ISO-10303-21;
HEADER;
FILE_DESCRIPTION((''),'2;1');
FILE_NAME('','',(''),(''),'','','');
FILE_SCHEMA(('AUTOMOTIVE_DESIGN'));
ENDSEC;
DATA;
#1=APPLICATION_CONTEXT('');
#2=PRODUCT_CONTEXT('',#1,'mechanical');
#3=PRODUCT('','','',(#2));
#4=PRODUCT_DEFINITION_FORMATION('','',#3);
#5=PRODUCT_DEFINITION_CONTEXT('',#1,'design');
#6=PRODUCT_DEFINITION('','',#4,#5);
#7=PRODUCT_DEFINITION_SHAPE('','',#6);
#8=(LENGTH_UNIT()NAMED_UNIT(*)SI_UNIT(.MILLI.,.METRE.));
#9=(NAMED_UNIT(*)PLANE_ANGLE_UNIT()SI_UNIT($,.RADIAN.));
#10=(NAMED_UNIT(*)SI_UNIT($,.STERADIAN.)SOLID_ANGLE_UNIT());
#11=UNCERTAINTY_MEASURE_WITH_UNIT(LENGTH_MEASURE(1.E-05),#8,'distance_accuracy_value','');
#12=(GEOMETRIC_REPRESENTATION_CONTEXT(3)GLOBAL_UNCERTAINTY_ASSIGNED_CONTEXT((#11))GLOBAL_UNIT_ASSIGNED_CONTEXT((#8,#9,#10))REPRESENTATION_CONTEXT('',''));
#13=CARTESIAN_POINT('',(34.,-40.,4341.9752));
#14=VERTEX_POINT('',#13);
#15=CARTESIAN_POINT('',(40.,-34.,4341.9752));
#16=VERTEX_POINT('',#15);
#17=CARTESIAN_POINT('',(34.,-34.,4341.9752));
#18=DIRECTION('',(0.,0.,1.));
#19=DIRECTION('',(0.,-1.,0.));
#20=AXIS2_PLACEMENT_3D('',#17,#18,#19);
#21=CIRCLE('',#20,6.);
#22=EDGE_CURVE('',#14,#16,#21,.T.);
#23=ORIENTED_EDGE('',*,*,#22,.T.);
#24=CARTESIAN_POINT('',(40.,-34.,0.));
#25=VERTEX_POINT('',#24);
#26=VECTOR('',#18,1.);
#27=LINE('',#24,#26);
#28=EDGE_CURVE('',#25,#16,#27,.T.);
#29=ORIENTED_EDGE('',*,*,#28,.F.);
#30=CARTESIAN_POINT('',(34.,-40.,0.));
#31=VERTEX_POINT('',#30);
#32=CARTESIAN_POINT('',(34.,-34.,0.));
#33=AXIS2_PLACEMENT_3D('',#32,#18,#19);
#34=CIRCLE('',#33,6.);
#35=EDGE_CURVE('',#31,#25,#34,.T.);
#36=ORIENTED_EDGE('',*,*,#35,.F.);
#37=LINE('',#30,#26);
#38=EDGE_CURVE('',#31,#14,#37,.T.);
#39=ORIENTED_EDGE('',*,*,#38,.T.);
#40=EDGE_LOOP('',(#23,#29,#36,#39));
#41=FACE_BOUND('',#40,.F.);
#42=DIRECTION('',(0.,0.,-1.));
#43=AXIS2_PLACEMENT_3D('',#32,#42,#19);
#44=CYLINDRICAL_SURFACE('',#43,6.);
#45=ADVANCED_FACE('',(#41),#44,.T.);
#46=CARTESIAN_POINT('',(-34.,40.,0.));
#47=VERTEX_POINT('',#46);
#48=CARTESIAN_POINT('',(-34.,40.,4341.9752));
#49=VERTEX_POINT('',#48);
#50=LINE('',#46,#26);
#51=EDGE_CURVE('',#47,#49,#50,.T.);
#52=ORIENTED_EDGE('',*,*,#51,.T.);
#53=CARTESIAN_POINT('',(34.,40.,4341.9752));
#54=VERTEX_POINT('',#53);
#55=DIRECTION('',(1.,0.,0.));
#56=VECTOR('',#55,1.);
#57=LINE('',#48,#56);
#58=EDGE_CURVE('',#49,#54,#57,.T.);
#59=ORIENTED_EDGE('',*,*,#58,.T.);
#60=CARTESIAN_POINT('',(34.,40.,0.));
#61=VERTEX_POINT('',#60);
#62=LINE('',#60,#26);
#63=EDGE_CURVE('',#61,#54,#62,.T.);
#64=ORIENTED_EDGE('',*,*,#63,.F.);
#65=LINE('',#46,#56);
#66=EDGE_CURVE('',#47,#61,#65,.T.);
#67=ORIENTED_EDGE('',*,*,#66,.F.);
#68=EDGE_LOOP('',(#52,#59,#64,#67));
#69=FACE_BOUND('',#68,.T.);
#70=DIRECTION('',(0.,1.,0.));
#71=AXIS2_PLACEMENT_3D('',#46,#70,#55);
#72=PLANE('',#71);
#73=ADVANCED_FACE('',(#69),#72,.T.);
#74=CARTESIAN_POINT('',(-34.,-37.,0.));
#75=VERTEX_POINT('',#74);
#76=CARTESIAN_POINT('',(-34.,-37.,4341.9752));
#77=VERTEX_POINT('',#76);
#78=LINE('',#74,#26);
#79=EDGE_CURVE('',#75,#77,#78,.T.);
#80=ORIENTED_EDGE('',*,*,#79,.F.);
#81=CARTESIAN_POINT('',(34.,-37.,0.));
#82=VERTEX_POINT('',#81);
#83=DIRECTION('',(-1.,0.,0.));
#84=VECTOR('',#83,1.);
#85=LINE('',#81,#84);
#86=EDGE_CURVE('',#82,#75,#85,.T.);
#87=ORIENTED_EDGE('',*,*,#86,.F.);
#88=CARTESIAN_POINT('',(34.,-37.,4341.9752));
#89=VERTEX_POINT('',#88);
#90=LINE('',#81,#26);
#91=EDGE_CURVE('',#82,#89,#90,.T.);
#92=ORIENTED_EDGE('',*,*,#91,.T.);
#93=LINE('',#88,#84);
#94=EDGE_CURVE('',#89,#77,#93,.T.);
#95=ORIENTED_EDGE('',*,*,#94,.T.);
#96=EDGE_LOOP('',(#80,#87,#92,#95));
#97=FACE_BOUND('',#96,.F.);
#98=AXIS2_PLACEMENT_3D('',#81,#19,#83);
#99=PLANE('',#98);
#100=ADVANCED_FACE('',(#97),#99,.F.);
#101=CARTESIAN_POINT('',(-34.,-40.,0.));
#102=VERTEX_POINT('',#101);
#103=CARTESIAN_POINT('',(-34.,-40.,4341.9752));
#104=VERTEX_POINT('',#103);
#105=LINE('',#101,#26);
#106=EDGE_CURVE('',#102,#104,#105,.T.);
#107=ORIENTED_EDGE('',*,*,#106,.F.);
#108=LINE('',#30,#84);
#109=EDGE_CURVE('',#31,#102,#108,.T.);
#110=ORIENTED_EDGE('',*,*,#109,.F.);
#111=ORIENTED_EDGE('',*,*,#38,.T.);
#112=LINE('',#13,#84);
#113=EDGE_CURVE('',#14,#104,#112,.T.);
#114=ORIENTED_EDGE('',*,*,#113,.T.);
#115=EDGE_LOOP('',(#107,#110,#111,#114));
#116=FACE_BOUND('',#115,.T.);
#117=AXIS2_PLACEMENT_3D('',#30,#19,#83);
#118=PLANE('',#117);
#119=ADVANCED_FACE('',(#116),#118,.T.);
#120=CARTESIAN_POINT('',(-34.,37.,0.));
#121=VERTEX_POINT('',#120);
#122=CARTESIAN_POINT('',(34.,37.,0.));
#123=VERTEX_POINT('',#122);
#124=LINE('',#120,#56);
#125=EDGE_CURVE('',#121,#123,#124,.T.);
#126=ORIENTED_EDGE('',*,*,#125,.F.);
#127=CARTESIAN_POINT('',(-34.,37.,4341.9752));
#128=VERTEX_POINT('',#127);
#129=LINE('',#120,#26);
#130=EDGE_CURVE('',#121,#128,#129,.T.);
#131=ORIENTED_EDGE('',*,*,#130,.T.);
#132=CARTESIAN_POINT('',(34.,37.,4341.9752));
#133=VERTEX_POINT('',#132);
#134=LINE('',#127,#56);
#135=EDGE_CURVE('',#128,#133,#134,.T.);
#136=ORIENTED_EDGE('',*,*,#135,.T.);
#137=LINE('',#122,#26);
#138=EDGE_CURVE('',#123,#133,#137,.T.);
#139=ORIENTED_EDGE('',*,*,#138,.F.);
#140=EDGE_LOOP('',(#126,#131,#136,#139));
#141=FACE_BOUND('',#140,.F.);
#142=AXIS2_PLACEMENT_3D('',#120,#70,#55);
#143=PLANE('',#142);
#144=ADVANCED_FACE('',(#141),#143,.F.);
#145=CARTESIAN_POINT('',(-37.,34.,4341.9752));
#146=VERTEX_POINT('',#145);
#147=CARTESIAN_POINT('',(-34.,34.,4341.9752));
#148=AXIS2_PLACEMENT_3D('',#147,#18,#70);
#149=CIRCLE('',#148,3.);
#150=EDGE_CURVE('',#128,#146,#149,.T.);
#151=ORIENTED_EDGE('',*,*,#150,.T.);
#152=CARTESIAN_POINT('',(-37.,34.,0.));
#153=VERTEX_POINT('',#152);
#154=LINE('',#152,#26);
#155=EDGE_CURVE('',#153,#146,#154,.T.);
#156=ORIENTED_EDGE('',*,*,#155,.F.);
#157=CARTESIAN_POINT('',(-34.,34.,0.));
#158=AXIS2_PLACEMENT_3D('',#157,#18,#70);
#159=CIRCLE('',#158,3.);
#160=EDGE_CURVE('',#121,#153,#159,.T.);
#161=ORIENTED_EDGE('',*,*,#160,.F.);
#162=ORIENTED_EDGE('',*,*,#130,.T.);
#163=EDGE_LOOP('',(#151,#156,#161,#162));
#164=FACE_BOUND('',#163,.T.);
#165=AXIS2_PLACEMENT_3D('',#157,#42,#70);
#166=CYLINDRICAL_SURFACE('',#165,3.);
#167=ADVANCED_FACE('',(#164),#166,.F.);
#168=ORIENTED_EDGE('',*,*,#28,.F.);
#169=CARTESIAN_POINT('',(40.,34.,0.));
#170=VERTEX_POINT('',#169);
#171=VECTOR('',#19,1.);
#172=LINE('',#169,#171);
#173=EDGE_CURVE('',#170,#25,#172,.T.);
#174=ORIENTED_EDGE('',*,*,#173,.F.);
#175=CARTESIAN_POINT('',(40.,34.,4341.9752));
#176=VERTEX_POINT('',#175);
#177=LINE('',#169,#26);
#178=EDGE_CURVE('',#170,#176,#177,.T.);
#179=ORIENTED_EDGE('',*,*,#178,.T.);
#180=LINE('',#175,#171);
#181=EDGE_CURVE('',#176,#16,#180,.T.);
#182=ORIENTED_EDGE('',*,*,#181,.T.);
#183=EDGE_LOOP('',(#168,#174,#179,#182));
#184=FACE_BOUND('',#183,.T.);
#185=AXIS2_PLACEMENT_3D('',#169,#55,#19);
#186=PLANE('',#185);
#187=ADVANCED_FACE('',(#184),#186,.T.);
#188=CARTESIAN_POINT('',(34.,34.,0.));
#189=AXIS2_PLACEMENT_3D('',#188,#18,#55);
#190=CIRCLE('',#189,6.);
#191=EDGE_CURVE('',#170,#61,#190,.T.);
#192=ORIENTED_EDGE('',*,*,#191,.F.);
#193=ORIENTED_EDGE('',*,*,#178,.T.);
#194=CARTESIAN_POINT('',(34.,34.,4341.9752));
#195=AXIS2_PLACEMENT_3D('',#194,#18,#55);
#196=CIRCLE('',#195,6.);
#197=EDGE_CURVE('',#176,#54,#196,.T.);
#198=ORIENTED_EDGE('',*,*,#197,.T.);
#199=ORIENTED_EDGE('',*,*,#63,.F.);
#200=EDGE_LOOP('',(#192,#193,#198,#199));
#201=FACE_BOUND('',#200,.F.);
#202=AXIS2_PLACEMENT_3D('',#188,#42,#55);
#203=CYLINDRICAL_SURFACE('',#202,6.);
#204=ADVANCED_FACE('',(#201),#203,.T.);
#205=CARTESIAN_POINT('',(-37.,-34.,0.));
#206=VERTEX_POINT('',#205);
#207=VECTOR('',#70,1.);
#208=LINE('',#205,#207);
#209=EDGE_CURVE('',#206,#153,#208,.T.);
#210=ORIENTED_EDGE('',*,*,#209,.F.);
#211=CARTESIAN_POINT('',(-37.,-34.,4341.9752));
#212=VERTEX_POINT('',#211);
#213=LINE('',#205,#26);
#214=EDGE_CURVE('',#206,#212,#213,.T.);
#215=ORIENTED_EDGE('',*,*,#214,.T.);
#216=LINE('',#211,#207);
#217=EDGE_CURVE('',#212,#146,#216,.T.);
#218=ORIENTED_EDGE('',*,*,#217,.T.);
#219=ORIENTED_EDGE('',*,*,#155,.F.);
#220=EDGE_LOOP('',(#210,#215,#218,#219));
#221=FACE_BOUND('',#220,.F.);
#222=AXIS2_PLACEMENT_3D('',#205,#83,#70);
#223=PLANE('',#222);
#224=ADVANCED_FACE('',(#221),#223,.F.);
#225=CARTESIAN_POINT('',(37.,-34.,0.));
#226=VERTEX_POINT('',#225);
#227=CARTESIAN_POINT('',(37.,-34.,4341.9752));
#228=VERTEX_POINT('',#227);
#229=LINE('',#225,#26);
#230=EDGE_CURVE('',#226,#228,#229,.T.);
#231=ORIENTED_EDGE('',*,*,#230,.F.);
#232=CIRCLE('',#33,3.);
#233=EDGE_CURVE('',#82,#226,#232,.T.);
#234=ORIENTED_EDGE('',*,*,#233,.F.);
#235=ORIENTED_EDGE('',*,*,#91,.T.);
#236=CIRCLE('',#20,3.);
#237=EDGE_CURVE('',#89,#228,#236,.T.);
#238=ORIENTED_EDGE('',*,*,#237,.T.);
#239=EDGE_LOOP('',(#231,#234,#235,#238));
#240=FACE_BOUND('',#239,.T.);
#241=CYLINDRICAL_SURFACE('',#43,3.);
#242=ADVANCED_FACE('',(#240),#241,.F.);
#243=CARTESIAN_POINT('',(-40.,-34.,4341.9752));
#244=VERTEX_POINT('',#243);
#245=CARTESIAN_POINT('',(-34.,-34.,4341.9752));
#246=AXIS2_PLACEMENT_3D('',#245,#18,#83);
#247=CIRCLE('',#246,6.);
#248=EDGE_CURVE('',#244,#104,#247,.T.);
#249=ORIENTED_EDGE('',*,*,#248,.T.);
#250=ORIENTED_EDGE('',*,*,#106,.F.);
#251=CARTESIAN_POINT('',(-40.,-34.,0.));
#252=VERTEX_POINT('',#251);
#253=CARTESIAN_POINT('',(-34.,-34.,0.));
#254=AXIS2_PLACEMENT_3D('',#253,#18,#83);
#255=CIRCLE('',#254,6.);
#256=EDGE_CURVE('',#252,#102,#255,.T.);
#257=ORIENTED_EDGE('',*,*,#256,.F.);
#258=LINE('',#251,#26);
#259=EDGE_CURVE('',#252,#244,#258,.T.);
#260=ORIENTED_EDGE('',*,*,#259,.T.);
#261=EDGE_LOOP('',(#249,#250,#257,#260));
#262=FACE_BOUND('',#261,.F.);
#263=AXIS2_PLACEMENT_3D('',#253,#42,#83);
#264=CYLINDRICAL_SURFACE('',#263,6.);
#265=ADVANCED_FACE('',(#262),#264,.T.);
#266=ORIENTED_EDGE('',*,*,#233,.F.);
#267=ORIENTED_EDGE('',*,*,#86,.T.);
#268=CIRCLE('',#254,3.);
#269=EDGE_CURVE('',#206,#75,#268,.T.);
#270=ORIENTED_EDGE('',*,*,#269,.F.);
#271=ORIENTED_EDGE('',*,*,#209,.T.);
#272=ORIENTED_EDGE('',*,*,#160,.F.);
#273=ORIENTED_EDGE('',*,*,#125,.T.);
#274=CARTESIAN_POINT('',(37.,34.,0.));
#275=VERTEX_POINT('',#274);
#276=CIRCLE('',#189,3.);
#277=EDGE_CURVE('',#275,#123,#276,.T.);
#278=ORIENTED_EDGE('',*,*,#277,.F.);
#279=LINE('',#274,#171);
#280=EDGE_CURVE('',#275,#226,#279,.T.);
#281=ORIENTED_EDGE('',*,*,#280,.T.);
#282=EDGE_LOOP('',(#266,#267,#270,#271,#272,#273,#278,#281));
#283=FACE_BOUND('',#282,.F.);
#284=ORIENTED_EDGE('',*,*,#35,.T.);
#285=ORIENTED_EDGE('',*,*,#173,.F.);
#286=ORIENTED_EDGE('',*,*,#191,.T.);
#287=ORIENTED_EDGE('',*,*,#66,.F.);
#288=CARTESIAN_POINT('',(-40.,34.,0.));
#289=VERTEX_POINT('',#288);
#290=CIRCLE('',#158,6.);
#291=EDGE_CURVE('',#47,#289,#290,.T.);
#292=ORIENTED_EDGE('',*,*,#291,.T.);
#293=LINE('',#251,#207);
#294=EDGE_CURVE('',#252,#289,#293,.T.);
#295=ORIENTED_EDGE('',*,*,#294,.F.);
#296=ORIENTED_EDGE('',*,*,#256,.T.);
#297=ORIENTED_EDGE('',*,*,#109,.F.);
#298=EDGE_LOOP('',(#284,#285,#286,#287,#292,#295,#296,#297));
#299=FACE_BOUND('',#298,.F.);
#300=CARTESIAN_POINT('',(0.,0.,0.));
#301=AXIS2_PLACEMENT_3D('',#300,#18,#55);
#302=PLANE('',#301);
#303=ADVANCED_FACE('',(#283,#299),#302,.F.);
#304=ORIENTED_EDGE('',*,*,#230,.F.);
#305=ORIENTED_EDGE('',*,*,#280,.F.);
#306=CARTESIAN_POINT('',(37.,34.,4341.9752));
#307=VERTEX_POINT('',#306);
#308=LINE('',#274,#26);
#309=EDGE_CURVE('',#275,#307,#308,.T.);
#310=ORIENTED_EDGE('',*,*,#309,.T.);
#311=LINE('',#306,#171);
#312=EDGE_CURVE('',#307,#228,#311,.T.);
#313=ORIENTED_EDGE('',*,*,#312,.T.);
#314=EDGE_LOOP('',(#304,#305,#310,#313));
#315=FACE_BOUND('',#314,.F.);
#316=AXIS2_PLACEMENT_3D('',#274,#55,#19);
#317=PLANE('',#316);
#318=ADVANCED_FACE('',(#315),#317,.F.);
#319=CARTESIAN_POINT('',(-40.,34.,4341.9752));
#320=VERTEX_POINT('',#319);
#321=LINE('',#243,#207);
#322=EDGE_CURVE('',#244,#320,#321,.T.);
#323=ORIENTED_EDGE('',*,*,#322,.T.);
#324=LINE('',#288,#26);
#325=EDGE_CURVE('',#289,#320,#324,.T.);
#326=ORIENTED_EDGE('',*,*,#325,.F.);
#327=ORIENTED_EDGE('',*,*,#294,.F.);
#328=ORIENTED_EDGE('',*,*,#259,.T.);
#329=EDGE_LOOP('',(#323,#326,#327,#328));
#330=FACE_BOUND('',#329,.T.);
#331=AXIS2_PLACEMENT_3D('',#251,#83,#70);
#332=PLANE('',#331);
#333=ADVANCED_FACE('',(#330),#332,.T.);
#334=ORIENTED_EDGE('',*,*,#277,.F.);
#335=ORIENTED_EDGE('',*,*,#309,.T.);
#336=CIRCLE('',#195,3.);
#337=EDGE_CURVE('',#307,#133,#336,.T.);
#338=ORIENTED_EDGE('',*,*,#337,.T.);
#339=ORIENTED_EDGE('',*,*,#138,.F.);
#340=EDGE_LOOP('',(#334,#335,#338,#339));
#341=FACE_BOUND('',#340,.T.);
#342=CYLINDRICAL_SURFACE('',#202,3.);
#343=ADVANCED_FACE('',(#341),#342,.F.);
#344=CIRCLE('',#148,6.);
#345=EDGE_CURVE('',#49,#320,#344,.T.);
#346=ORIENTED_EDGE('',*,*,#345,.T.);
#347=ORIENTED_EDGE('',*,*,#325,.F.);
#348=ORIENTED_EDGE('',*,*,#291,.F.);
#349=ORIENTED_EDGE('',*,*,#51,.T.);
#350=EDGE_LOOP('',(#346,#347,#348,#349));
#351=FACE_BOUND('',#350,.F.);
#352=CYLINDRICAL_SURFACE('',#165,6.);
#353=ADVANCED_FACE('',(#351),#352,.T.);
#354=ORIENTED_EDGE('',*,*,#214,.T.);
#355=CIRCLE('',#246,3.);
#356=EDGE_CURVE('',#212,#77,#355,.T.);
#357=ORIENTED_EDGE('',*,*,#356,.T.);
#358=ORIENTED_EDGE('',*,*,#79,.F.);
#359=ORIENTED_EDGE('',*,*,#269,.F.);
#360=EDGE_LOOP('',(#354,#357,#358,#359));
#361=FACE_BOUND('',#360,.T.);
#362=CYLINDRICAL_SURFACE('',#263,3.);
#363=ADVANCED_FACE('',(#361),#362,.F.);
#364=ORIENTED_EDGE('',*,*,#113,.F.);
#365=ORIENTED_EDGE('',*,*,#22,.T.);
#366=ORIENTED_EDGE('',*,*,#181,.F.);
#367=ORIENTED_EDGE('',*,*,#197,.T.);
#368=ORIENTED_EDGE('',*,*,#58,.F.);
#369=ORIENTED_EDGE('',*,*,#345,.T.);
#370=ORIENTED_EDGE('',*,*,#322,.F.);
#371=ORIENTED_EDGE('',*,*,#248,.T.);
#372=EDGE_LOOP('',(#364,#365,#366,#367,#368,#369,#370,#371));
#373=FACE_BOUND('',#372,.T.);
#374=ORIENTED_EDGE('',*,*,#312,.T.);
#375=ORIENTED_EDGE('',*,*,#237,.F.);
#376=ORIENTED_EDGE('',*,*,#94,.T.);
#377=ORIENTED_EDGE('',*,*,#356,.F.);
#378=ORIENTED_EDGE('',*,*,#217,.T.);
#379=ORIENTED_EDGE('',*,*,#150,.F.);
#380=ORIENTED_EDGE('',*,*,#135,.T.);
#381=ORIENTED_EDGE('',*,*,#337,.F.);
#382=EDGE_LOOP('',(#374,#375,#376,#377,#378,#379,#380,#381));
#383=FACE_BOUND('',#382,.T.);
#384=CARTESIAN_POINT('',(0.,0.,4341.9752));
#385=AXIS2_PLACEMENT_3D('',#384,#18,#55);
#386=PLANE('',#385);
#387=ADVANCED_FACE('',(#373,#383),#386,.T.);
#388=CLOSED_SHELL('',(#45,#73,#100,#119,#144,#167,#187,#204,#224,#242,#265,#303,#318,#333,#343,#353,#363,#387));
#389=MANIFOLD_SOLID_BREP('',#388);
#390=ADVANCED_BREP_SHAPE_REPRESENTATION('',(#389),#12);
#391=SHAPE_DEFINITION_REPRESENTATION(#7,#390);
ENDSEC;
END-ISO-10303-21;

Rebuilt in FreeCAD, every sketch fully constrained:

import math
import FreeCAD as App
import Part
import Sketcher

V = App.Vector
Q = App.Units.Quantity

doc = App.newDocument("Part")
body = doc.addObject("PartDesign::Body", "Body")

# Sketch on XY plane
sketch1 = body.newObject("Sketcher::SketchObject", "Sketch")
sketch1.AttachmentSupport = (doc.getObject("XY_Plane"), [""])
sketch1.MapMode = "FlatFace"
sketch1.addGeometry(Part.LineSegment(V(-40, 34, 0), V(-40, -34, 0)), False)
sketch1.addGeometry(Part.ArcOfCircle(Part.Circle(V(-34, -34, 0), V(0, 0, 1), 6), math.radians(180), math.radians(270)), False)
sketch1.addGeometry(Part.LineSegment(V(-34, -40, 0), V(34, -40, 0)), False)
sketch1.addGeometry(Part.ArcOfCircle(Part.Circle(V(34, -34, 0), V(0, 0, 1), 6), math.radians(-90), math.radians(0)), False)
sketch1.addGeometry(Part.LineSegment(V(40, -34, 0), V(40, 34, 0)), False)
sketch1.addGeometry(Part.ArcOfCircle(Part.Circle(V(34, 34, 0), V(0, 0, 1), 6), math.radians(0), math.radians(90)), False)
sketch1.addGeometry(Part.LineSegment(V(34, 40, 0), V(-34, 40, 0)), False)
sketch1.addGeometry(Part.ArcOfCircle(Part.Circle(V(-34, 34, 0), V(0, 0, 1), 6), math.radians(90), math.radians(180)), False)
sketch1.addGeometry(Part.ArcOfCircle(Part.Circle(V(-34, 34, 0), V(0, 0, 1), 3), math.radians(90), math.radians(180)), False)
sketch1.addGeometry(Part.LineSegment(V(-34, 37, 0), V(34, 37, 0)), False)
sketch1.addGeometry(Part.ArcOfCircle(Part.Circle(V(34, 34, 0), V(0, 0, 1), 3), math.radians(0), math.radians(90)), False)
sketch1.addGeometry(Part.LineSegment(V(37, 34, 0), V(37, -34, 0)), False)
sketch1.addGeometry(Part.ArcOfCircle(Part.Circle(V(34, -34, 0), V(0, 0, 1), 3), math.radians(-90), math.radians(0)), False)
sketch1.addGeometry(Part.LineSegment(V(34, -37, 0), V(-34, -37, 0)), False)
sketch1.addGeometry(Part.ArcOfCircle(Part.Circle(V(-34, -34, 0), V(0, 0, 1), 3), math.radians(180), math.radians(270)), False)
sketch1.addGeometry(Part.LineSegment(V(-37, -34, 0), V(-37, 34, 0)), False)
sketch1.addConstraint(Sketcher.Constraint("Tangent", 0, 2, 1, 1))
sketch1.addConstraint(Sketcher.Constraint("Tangent", 1, 2, 2, 1))
sketch1.addConstraint(Sketcher.Constraint("Tangent", 2, 2, 3, 1))
sketch1.addConstraint(Sketcher.Constraint("Tangent", 3, 2, 4, 1))
sketch1.addConstraint(Sketcher.Constraint("Tangent", 4, 2, 5, 1))
sketch1.addConstraint(Sketcher.Constraint("Tangent", 5, 2, 6, 1))
sketch1.addConstraint(Sketcher.Constraint("Tangent", 6, 2, 7, 1))
sketch1.addConstraint(Sketcher.Constraint("Tangent", 7, 2, 0, 1))
sketch1.addConstraint(Sketcher.Constraint("Tangent", 8, 1, 9, 1))
sketch1.addConstraint(Sketcher.Constraint("Tangent", 9, 2, 10, 2))
sketch1.addConstraint(Sketcher.Constraint("Tangent", 10, 1, 11, 1))
sketch1.addConstraint(Sketcher.Constraint("Tangent", 11, 2, 12, 2))
sketch1.addConstraint(Sketcher.Constraint("Tangent", 12, 1, 13, 1))
sketch1.addConstraint(Sketcher.Constraint("Tangent", 13, 2, 14, 2))
sketch1.addConstraint(Sketcher.Constraint("Tangent", 14, 1, 15, 1))
sketch1.addConstraint(Sketcher.Constraint("Tangent", 15, 2, 8, 2))
sketch1.addConstraint(Sketcher.Constraint("Vertical", 0))
sketch1.addConstraint(Sketcher.Constraint("Horizontal", 2))
sketch1.addConstraint(Sketcher.Constraint("Vertical", 4))
sketch1.addConstraint(Sketcher.Constraint("Horizontal", 6))
sketch1.addConstraint(Sketcher.Constraint("Horizontal", 9))
sketch1.addConstraint(Sketcher.Constraint("Vertical", 11))
sketch1.addConstraint(Sketcher.Constraint("Horizontal", 13))
sketch1.addConstraint(Sketcher.Constraint("Vertical", 15))
sketch1.addConstraint(Sketcher.Constraint("Coincident", 8, 3, 7, 3))
sketch1.addConstraint(Sketcher.Constraint("Coincident", 10, 3, 5, 3))
sketch1.addConstraint(Sketcher.Constraint("Coincident", 12, 3, 3, 3))
sketch1.addConstraint(Sketcher.Constraint("Equal", 1, 3))
sketch1.addConstraint(Sketcher.Constraint("Equal", 3, 5))
sketch1.addConstraint(Sketcher.Constraint("Equal", 5, 7))
sketch1.addConstraint(Sketcher.Constraint("Equal", 12, 14))
sketch1.addConstraint(Sketcher.Constraint("Symmetric", 1, 3, 5, 3, -1, 1))
sketch1.addConstraint(Sketcher.Constraint("Equal", 13, 0))
sketch1.addConstraint(Sketcher.Constraint("Radius", 1, Q("6 mm")))
sketch1.addConstraint(Sketcher.Constraint("Radius", 8, Q("3 mm")))
sketch1.addConstraint(Sketcher.Constraint("DistanceX", 0, 2, -1, 1, Q("40 mm")))
pad1 = body.newObject("PartDesign::Pad", "Pad")
pad1.Profile = sketch1
pad1.Length = 4341.9752

doc.recompute()
